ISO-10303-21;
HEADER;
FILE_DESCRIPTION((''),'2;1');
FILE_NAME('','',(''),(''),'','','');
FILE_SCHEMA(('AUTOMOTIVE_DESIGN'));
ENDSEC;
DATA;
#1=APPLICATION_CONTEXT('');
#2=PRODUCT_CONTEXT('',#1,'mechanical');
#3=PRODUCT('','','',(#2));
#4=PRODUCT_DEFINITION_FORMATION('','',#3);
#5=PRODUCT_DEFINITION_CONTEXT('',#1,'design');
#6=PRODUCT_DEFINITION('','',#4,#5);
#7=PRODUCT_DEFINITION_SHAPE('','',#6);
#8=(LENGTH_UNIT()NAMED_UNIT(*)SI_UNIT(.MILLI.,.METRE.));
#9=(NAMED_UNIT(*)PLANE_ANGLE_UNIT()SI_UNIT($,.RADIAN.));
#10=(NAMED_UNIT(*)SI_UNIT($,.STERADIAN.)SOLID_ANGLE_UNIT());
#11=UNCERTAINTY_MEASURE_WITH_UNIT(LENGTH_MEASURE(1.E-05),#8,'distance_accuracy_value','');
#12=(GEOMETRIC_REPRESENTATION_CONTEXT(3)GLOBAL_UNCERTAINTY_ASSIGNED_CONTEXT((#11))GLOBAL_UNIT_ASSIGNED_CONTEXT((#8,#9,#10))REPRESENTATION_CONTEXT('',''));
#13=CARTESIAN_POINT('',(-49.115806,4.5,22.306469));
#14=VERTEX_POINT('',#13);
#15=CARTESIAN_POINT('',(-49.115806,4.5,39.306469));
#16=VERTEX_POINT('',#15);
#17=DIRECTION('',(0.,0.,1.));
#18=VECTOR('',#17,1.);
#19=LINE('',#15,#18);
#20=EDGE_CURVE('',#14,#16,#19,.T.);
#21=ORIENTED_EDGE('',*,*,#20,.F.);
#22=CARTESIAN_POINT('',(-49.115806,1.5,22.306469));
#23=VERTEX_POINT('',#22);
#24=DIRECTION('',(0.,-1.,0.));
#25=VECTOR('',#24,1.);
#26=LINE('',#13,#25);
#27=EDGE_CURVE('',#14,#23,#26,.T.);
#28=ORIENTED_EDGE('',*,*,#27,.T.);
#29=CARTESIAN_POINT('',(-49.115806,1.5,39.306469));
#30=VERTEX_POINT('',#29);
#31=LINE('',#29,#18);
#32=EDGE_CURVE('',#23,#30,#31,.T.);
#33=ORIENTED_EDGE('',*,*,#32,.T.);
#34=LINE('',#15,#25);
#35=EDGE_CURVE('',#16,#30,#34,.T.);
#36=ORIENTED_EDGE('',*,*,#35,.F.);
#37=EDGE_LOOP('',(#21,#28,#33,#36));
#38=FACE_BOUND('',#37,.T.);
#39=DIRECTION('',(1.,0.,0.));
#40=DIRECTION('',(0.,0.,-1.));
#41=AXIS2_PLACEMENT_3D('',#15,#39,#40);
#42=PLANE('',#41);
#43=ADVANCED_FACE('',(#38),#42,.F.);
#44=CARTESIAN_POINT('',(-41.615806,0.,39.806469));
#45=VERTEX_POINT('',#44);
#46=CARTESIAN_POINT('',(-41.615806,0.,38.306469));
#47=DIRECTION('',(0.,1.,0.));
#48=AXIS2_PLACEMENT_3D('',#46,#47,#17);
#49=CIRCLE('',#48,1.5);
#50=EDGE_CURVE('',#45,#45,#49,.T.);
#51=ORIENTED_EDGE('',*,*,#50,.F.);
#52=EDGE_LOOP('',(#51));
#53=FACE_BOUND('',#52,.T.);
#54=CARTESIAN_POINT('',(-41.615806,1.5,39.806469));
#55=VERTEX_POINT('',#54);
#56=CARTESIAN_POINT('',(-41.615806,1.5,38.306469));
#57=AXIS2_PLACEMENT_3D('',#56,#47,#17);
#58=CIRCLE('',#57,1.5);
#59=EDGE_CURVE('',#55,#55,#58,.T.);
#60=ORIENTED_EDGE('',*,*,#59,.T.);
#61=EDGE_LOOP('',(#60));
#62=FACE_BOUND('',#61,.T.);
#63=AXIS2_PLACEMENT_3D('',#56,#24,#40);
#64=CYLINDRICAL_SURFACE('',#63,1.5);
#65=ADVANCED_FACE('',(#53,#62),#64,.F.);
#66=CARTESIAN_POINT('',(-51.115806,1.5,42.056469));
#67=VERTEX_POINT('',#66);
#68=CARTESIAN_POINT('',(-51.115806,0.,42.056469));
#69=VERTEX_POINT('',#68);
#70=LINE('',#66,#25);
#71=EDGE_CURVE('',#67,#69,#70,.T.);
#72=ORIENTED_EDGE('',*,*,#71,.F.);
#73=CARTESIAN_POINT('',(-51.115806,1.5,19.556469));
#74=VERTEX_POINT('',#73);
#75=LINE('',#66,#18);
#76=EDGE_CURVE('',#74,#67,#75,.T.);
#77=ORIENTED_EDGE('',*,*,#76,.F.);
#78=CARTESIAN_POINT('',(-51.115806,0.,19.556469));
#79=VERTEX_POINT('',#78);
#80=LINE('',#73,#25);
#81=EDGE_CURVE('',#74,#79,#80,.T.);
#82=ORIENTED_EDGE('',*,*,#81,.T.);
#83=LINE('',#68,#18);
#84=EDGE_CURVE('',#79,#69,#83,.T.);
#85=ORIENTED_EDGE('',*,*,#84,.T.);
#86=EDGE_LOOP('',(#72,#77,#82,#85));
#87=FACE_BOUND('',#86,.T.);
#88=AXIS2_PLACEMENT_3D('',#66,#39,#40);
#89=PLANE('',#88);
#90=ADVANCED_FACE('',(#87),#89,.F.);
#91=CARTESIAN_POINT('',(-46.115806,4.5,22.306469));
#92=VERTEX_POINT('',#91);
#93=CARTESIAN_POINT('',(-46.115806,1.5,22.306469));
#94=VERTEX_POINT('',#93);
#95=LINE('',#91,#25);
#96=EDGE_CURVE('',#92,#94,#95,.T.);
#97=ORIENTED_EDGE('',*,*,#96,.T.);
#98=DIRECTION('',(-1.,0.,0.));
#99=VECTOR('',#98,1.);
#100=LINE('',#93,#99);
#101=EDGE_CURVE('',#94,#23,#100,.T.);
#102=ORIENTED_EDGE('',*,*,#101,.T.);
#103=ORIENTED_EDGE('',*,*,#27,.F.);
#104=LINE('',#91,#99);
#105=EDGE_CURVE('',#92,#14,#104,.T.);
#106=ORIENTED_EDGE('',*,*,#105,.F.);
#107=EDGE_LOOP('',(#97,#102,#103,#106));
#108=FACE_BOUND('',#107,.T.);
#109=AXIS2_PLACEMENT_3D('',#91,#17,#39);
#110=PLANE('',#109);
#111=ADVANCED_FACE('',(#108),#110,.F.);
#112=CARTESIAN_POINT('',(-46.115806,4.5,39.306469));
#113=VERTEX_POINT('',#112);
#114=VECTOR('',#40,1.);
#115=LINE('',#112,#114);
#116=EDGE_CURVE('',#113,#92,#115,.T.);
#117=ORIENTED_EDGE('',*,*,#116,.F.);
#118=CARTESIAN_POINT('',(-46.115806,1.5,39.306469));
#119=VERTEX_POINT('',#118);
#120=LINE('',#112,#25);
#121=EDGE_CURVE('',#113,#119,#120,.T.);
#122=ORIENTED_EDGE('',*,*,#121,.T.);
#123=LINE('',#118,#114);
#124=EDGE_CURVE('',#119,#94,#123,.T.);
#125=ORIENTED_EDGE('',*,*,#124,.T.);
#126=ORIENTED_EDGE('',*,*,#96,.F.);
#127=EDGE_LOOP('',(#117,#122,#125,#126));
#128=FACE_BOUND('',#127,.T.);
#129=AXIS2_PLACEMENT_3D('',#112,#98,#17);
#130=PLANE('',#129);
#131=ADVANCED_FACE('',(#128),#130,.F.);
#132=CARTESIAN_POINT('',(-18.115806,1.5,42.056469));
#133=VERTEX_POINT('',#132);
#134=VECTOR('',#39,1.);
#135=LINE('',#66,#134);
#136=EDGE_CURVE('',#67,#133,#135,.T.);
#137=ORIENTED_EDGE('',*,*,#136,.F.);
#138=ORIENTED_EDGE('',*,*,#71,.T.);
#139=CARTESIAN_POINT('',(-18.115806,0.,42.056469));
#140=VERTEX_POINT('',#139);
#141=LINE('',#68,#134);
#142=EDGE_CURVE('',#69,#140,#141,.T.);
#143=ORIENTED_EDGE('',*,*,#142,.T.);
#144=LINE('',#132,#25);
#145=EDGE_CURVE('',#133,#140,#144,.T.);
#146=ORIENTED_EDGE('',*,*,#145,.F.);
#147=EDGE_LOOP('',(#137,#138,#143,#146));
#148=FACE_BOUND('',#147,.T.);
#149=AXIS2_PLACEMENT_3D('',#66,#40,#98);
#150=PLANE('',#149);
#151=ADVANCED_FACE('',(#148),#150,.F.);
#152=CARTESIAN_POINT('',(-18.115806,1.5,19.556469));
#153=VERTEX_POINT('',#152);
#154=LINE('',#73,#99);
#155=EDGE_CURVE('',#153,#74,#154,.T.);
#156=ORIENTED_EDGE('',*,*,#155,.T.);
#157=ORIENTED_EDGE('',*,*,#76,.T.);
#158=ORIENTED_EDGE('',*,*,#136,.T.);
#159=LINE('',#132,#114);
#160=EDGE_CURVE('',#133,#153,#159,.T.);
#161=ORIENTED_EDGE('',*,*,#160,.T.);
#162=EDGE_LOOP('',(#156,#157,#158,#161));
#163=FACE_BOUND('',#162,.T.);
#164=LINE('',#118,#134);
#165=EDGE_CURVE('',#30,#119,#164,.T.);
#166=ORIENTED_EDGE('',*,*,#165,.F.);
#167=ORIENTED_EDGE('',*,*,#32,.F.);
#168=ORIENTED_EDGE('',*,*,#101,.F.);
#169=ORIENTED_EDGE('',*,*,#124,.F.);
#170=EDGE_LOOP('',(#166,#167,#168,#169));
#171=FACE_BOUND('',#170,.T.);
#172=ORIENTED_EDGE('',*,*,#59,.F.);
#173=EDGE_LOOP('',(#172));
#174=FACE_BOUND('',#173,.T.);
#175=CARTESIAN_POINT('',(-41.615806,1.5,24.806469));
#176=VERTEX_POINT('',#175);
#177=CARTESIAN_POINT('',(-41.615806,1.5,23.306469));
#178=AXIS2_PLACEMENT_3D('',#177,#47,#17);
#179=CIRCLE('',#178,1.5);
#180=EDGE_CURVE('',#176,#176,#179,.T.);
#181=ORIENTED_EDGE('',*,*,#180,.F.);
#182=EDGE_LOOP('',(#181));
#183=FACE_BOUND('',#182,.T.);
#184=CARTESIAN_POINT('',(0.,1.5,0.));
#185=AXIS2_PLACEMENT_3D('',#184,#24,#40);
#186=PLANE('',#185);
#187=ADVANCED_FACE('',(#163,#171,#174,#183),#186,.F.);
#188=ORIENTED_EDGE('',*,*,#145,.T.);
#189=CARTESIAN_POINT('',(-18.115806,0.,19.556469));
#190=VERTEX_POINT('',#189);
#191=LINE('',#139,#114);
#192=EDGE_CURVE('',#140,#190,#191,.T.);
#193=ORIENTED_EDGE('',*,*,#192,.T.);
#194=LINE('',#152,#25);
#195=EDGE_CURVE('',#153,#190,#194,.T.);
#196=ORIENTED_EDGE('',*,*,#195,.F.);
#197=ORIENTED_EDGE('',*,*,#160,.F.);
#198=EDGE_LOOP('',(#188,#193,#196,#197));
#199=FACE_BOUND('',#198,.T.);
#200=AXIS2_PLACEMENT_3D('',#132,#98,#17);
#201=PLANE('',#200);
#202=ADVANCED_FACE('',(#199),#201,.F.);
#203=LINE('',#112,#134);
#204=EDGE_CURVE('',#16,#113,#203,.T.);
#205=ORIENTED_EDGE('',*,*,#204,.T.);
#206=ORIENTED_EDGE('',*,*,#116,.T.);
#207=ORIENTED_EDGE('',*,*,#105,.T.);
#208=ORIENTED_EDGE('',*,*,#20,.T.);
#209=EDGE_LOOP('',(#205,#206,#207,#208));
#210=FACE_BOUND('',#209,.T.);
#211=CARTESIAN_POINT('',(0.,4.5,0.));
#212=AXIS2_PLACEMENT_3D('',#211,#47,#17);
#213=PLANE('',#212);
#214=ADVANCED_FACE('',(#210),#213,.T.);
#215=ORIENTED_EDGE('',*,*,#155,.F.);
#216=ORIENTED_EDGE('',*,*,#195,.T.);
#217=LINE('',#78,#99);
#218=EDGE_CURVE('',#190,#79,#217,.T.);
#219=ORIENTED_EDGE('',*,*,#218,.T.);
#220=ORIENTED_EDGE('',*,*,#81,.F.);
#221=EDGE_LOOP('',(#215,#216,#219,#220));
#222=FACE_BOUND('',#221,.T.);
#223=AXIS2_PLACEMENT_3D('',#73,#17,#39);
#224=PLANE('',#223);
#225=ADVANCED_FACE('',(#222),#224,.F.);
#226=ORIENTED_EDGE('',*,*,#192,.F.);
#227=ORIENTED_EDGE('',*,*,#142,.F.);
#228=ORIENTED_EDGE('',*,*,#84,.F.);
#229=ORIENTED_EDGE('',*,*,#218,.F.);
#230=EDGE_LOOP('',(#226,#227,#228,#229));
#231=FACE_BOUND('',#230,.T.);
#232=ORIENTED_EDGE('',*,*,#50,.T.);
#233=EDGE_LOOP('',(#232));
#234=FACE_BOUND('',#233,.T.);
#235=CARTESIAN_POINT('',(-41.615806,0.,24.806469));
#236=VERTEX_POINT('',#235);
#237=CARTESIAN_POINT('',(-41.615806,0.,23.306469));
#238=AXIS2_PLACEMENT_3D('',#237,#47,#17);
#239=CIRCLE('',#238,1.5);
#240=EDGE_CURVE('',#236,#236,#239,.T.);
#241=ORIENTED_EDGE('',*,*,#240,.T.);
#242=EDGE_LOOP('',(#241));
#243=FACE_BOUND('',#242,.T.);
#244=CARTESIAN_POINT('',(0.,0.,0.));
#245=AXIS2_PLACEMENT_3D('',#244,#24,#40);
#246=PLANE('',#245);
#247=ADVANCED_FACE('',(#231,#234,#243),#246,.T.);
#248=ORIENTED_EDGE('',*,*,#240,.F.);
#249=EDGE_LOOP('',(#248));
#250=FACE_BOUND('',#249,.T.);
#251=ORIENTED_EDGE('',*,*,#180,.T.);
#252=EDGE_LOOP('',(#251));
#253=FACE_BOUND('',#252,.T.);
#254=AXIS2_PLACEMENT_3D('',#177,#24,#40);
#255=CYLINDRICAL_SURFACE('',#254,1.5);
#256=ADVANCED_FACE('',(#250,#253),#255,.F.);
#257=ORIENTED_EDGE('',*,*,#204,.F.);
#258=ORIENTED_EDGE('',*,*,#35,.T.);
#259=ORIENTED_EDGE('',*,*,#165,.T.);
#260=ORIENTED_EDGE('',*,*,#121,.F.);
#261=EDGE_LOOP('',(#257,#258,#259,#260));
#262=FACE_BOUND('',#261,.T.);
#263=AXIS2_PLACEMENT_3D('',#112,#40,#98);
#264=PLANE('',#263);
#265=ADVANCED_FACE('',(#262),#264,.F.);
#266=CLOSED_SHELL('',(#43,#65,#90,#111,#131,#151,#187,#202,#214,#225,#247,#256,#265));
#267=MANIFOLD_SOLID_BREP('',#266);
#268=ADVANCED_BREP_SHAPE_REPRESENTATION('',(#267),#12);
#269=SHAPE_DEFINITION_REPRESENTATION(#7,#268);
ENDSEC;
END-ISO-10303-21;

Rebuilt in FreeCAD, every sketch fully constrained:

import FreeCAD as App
import Part
import Sketcher
from FreeCAD import Vector
Q = App.Units.Quantity


def add_polygon(sketch, points):
    """Adds a closed chain of lines whose ends are joined by coincident constraints."""
    first, n = sketch.GeometryCount, len(points)
    for a, b in zip(points, points[1:] + points[:1]):
        sketch.addGeometry(Part.LineSegment(App.Vector(*a, 0), App.Vector(*b, 0)), False)
    for i in range(n):
        sketch.addConstraint(Sketcher.Constraint("Coincident", first + i, 2, first + (i + 1) % n, 1))

doc = App.newDocument("Part")
body = doc.addObject("PartDesign::Body", "Body")

# Sketch on XZ plane
sketch1 = body.newObject("Sketcher::SketchObject", "Sketch")
sketch1.AttachmentSupport = (doc.getObject("XZ_Plane"), [""])
sketch1.MapMode = "FlatFace"
add_polygon(sketch1, [(-51.115806, 19.556469), (-51.115806, 42.056469), (-18.115806, 42.056469), (-18.115806, 19.556469)])  # lines 0-3
sketch1.addGeometry(Part.Circle(Vector(-41.615806, 38.306469, 0), Vector(0, 0, 1), 1.5), False)  # 4
sketch1.addGeometry(Part.Circle(Vector(-41.615806, 23.306469, 0), Vector(0, 0, 1), 1.5), False)  # 5
sketch1.addConstraint(Sketcher.Constraint("Vertical", 0))
sketch1.addConstraint(Sketcher.Constraint("Horizontal", 1))
sketch1.addConstraint(Sketcher.Constraint("Vertical", 2))
sketch1.addConstraint(Sketcher.Constraint("Horizontal", 3))
sketch1.addConstraint(Sketcher.Constraint("Equal", 4, 5))
sketch1.addConstraint(Sketcher.Constraint("Vertical", 4, 3, 5, 3))
sketch1.addConstraint(Sketcher.Constraint("Diameter", 4, Q("3 mm")))
sketch1.addConstraint(Sketcher.Constraint("DistanceX", 1, 1, 1, 2, Q("33 mm")))
sketch1.addConstraint(Sketcher.Constraint("DistanceY", 0, 1, 0, 2, Q("22.5 mm")))
sketch1.addConstraint(Sketcher.Constraint("DistanceY", 5, 3, 4, 3, Q("15 mm")))
sketch1.addConstraint(Sketcher.Constraint("DistanceX", 0, 2, 4, 3, Q("9.5 mm")))
sketch1.addConstraint(Sketcher.Constraint("DistanceY", 4, 3, 0, 2, Q("3.75 mm")))
sketch1.addConstraint(Sketcher.Constraint("DistanceY", -1, 1, 4, 3, Q("38.306469 mm")))
sketch1.addConstraint(Sketcher.Constraint("DistanceX", 4, 3, -1, 1, Q("41.615806 mm")))
pad1 = body.newObject("PartDesign::Pad", "Pad")
pad1.Profile = sketch1
pad1.Length = 1.5
pad1.Reversed = True

# Sketch on XZ plane
sketch2 = body.newObject("Sketcher::SketchObject", "Sketch001")
sketch2.AttachmentSupport = (doc.getObject("XZ_Plane"), [""])
sketch2.MapMode = "FlatFace"
sketch2.AttachmentOffset = App.Placement(Vector(0, 0, -1.5), App.Rotation())
add_polygon(sketch2, [(-49.115806, 22.306469), (-49.115806, 39.306469), (-46.115806, 39.306469), (-46.115806, 22.306469)])  # lines 0-3
sketch2.addConstraint(Sketcher.Constraint("Vertical", 0))
sketch2.addConstraint(Sketcher.Constraint("Horizontal", 1))
sketch2.addConstraint(Sketcher.Constraint("Vertical", 2))
sketch2.addConstraint(Sketcher.Constraint("Horizontal", 3))
sketch2.addConstraint(Sketcher.Constraint("DistanceX", 1, 1, 1, 2, Q("3 mm")))
sketch2.addConstraint(Sketcher.Constraint("DistanceY", 0, 1, 0, 2, Q("17 mm")))
sketch2.addConstraint(Sketcher.Constraint("DistanceY", -1, 1, 0, 2, Q("39.306469 mm")))
sketch2.addConstraint(Sketcher.Constraint("DistanceX", 0, 2, -1, 1, Q("49.115806 mm")))
pad2 = body.newObject("PartDesign::Pad", "Pad001")
pad2.Profile = sketch2
pad2.Length = 3
pad2.Reversed = True

doc.recompute()
